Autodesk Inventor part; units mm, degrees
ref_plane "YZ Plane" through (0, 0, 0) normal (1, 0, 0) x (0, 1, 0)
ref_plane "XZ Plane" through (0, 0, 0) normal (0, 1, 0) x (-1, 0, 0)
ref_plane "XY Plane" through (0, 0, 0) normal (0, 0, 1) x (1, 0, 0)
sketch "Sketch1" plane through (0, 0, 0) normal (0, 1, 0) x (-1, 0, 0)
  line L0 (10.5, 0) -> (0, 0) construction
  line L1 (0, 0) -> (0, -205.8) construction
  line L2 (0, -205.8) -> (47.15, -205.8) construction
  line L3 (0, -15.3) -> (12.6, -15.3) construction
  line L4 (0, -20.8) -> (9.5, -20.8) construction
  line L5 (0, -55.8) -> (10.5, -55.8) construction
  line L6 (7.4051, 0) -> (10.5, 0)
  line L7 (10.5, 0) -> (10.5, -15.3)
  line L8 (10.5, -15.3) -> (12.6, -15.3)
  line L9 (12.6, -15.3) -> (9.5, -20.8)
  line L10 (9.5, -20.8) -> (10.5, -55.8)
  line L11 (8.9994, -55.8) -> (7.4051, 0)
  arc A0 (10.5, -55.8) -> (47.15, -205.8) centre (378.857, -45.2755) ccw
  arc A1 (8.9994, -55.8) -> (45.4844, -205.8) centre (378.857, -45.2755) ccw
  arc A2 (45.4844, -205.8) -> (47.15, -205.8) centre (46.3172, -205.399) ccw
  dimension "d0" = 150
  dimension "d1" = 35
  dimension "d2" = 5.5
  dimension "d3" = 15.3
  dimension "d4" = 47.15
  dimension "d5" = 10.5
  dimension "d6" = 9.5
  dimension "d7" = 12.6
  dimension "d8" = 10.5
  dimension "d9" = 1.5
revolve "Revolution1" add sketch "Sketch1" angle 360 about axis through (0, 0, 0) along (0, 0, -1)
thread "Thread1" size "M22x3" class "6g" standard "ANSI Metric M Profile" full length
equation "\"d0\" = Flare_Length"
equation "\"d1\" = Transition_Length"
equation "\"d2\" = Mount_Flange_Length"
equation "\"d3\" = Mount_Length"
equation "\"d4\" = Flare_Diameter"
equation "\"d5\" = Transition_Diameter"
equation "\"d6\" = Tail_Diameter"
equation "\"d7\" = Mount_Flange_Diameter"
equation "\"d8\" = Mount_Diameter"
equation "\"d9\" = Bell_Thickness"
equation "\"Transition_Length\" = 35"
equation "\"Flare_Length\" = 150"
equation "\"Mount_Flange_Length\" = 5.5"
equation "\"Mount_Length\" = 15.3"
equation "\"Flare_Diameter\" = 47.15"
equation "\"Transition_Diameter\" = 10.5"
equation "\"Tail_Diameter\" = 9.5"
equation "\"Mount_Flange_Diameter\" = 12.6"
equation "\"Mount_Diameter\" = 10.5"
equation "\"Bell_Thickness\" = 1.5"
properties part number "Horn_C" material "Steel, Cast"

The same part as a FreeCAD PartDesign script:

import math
import FreeCAD as App
import Part
import Sketcher

V = App.Vector

doc = App.newDocument("Part")
body = doc.addObject("PartDesign::Body", "Body")

# Sketch on XZ plane
sketch1 = body.newObject("Sketcher::SketchObject", "Sketch")
sketch1.AttachmentSupport = (doc.getObject("XZ_Plane"), [""])
sketch1.MapMode = "FlatFace"
sketch1.addGeometry([
    Part.LineSegment(V(-10.5, 0, 0), V(-7.4051, 0, 0)),  # 0
    Part.LineSegment(V(-7.4051, 0, 0), V(-8.9994, -55.8, 0)),  # 1
    Part.ArcOfCircle(Part.Circle(V(-378.857, -45.2755, 0), V(0, 0, 1), 370.00731), math.radians(-25.711595), math.radians(-1.629943)),  # 2
    Part.ArcOfCircle(Part.Circle(V(-46.3172, -205.399, 0), V(0, 0, 1), 0.924314), math.radians(-154.288805), math.radians(-25.711195)),  # 3
    Part.ArcOfCircle(Part.Circle(V(-378.857, -45.2755, 0), V(0, 0, 1), 368.50732), math.radians(-25.823947), math.radians(-1.636579)),  # 4
    Part.LineSegment(V(-10.5, -55.8, 0), V(-9.5, -20.8, 0)),  # 5
    Part.LineSegment(V(-9.5, -20.8, 0), V(-12.6, -15.3, 0)),  # 6
    Part.LineSegment(V(-12.6, -15.3, 0), V(-10.5, -15.3, 0)),  # 7
    Part.LineSegment(V(-10.5, -15.3, 0), V(-10.5, 0, 0)),  # 8
], False)
sketch1.addConstraint([
    Sketcher.Constraint("Coincident", 0, 2, 1, 1),
    Sketcher.Constraint("Coincident", 1, 2, 2, 2),
    Sketcher.Constraint("Coincident", 2, 1, 3, 2),
    Sketcher.Constraint("Coincident", 3, 1, 4, 1),
    Sketcher.Constraint("Coincident", 4, 2, 5, 1),
    Sketcher.Constraint("Coincident", 5, 2, 6, 1),
    Sketcher.Constraint("Coincident", 6, 2, 7, 1),
    Sketcher.Constraint("Coincident", 7, 2, 8, 1),
    Sketcher.Constraint("Coincident", 8, 2, 0, 1),
    Sketcher.Constraint("Horizontal", 0),
    Sketcher.Constraint("Horizontal", 7),
    Sketcher.Constraint("Vertical", 8),
    Sketcher.Constraint("Coincident", 4, 3, 2, 3),
    Sketcher.Constraint("PointOnObject", 0, 2, -1),
    Sketcher.Constraint("DistanceY", 8, 1, 8, 2, 15.3),
    Sketcher.Constraint("DistanceY", 2, 1, 1, 2, 150.0),
    Sketcher.Constraint("DistanceY", 3, 1, 1, 2, 150.0),
    Sketcher.Constraint("DistanceY", 2, 1, 4, 2, 150.0),
    Sketcher.Constraint("DistanceY", 1, 2, 5, 2, 35.0),
    Sketcher.Constraint("DistanceX", 4, 2, -1, 1, 10.5),
    Sketcher.Constraint("DistanceX", 5, 2, -1, 1, 9.5),
    Sketcher.Constraint("DistanceX", 6, 2, -1, 1, 12.6),
    Sketcher.Constraint("DistanceX", 7, 2, -1, 1, 10.5),
    Sketcher.Constraint("DistanceY", 5, 2, 6, 2, 5.5),
    Sketcher.Constraint("DistanceX", 3, 1, -1, 1, 47.15),
    Sketcher.Constraint("Radius", 2, 370.0073),
    Sketcher.Constraint("Radius", 3, 0.9243),
    Sketcher.Constraint("Radius", 4, 368.5073),
    Sketcher.Constraint("DistanceX", 0, 1, 0, 2, 3.095),
])
revolution = body.newObject("PartDesign::Revolution", "Revolution")
revolution.Profile = sketch1
revolution.ReferenceAxis = (sketch1, ["V_Axis"])
revolution.Angle = 360

doc.recompute()
